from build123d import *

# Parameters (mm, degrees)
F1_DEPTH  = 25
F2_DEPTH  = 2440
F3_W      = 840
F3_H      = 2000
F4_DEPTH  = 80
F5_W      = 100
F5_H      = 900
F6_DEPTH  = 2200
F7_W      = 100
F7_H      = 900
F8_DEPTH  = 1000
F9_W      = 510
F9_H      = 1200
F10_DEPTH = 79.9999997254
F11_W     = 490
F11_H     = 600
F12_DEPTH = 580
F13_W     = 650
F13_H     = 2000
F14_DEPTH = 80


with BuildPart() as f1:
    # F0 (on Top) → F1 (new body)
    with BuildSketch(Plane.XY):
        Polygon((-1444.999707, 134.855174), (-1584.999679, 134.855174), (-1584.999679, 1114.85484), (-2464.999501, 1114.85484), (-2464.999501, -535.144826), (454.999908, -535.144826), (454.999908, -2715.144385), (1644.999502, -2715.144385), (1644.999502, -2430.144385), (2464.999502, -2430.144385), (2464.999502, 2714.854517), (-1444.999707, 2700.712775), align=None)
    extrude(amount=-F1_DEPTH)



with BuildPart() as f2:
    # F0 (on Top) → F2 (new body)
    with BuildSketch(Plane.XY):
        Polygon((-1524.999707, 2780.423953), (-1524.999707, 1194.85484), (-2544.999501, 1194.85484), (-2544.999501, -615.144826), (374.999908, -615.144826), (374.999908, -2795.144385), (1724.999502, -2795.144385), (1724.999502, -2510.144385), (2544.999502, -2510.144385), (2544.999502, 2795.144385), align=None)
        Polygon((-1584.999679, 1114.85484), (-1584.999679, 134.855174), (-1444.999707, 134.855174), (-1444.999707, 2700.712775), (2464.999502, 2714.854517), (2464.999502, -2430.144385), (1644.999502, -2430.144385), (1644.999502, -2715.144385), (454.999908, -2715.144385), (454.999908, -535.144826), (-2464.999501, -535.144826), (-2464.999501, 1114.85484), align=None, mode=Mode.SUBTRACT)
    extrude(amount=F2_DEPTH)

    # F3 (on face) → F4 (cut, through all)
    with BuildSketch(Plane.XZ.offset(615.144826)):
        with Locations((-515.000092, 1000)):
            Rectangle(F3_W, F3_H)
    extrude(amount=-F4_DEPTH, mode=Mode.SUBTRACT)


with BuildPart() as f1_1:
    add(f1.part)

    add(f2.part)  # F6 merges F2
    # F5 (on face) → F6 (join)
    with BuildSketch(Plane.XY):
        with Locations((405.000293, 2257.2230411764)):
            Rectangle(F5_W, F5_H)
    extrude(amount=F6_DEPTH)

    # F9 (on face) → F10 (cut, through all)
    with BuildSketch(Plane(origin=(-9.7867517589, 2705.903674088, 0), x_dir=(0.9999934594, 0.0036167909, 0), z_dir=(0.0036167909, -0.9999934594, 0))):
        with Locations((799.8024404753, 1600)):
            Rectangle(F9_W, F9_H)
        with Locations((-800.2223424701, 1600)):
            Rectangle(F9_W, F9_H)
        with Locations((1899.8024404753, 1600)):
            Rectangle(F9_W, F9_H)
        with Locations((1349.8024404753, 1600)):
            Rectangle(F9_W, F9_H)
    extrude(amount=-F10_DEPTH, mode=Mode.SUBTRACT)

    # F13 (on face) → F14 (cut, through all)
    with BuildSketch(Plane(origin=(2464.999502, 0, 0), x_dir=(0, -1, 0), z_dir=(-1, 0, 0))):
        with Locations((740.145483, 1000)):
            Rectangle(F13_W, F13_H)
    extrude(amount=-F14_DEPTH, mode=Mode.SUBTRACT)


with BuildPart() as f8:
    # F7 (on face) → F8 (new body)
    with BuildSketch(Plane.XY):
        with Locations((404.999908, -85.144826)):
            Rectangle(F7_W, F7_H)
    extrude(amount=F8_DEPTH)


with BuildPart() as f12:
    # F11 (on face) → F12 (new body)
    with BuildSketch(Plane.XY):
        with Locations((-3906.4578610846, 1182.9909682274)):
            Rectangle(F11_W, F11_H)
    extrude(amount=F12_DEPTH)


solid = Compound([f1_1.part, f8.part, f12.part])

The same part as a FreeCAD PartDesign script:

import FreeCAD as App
import Part
import Sketcher
from FreeCAD import Vector


def add_polygon(sketch, points):
    """Adds a closed chain of lines whose ends are joined by coincident constraints."""
    first, n = sketch.GeometryCount, len(points)
    for a, b in zip(points, points[1:] + points[:1]):
        sketch.addGeometry(Part.LineSegment(App.Vector(*a, 0), App.Vector(*b, 0)), False)
    for i in range(n):
        sketch.addConstraint(Sketcher.Constraint("Coincident", first + i, 2, first + (i + 1) % n, 1))

doc = App.newDocument("Part")
body = doc.addObject("PartDesign::Body", "Body")

# Sketch on XY plane
sketch1 = body.newObject("Sketcher::SketchObject", "Sketch")
sketch1.AttachmentSupport = (doc.getObject("XY_Plane"), [""])
sketch1.MapMode = "FlatFace"
add_polygon(sketch1, [(-1444.999707, 134.855174), (-1584.999679, 134.855174), (-1584.999679, 1114.85484), (-2464.999501, 1114.85484), (-2464.999501, -535.144826), (454.999908, -535.144826), (454.999908, -2715.144385), (1644.999502, -2715.144385), (1644.999502, -2430.144385), (2464.999502, -2430.144385), (2464.999502, 2714.854517), (-1444.999707, 2700.712775)])  # lines 0-11
sketch1.addConstraint([
    Sketcher.Constraint("Horizontal", 0),
    Sketcher.Constraint("Vertical", 1),
    Sketcher.Constraint("Horizontal", 2),
    Sketcher.Constraint("Vertical", 3),
    Sketcher.Constraint("Horizontal", 4),
    Sketcher.Constraint("Vertical", 5),
    Sketcher.Constraint("Horizontal", 6),
    Sketcher.Constraint("Vertical", 7),
    Sketcher.Constraint("Horizontal", 8),
    Sketcher.Constraint("Vertical", 9),
    Sketcher.Constraint("Vertical", 11),
    Sketcher.Constraint("DistanceX", 8, 1, 8, 2, 820.0),
    Sketcher.Constraint("DistanceY", 7, 1, 7, 2, 285.0),
    Sketcher.Constraint("DistanceY", 3, 2, 0, 2, 670.0),
    Sketcher.Constraint("DistanceY", 11, 2, 11, 1, 2565.857601),
    Sketcher.Constraint("DistanceX", 2, 2, 2, 1, 879.999822),
    Sketcher.Constraint("DistanceX", 4, 1, 4, 2, 2919.999409),
    Sketcher.Constraint("DistanceY", 5, 2, 5, 1, 2179.999559),
    Sketcher.Constraint("DistanceX", 2, 2, -1, 1, 2464.999501),
    Sketcher.Constraint("DistanceX", -1, 1, 6, 2, 1644.999502),
    Sketcher.Constraint("DistanceX", 0, 2, 0, 1, 139.999972),
    Sketcher.Constraint("DistanceY", 1, 1, 1, 2, 979.999666),
    Sketcher.Constraint("DistanceY", 9, 1, 9, 2, 5144.998902),
    Sketcher.Constraint("DistanceY", -1, 1, 1, 2, 1114.85484),
])
pad1 = body.newObject("PartDesign::Pad", "Pad")
pad1.Profile = sketch1
pad1.Length = 25
pad1.Reversed = True
body2 = doc.addObject("PartDesign::Body", "Body001")

# Sketch on XY plane
sketch2 = body2.newObject("Sketcher::SketchObject", "Sketch001")
sketch2.AttachmentSupport = (doc.getObject("XY_Plane001"), [""])
sketch2.MapMode = "FlatFace"
add_polygon(sketch2, [(-1524.999707, 2780.423953), (-1524.999707, 1194.85484), (-2544.999501, 1194.85484), (-2544.999501, -615.144826), (374.999908, -615.144826), (374.999908, -2795.144385), (1724.999502, -2795.144385), (1724.999502, -2510.144385), (2544.999502, -2510.144385), (2544.999502, 2795.144385)])  # lines 0-9
add_polygon(sketch2, [(-2464.999501, 1114.85484), (-1584.999679, 1114.85484), (-1584.999679, 134.855174), (-1444.999707, 134.855174), (-1444.999707, 2700.712775), (2464.999502, 2714.854517), (2464.999502, -2430.144385), (1644.999502, -2430.144385), (1644.999502, -2715.144385), (454.999908, -2715.144385), (454.999908, -535.144826), (-2464.999501, -535.144826)])  # lines 10-21
sketch2.addConstraint([
    Sketcher.Constraint("Vertical", 0),
    Sketcher.Constraint("Horizontal", 1),
    Sketcher.Constraint("Vertical", 2),
    Sketcher.Constraint("Horizontal", 3),
    Sketcher.Constraint("Vertical", 4),
    Sketcher.Constraint("Horizontal", 5),
    Sketcher.Constraint("Vertical", 6),
    Sketcher.Constraint("Horizontal", 7),
    Sketcher.Constraint("Vertical", 8),
    Sketcher.Constraint("Horizontal", 10),
    Sketcher.Constraint("Vertical", 11),
    Sketcher.Constraint("Horizontal", 12),
    Sketcher.Constraint("Vertical", 13),
    Sketcher.Constraint("Vertical", 15),
    Sketcher.Constraint("Horizontal", 16),
    Sketcher.Constraint("Vertical", 17),
    Sketcher.Constraint("Horizontal", 18),
    Sketcher.Constraint("Vertical", 19),
    Sketcher.Constraint("Horizontal", 20),
    Sketcher.Constraint("Vertical", 21),
    Sketcher.Constraint("Parallel", 9, 14),
    Sketcher.Constraint("Equal", 7, 16),
    Sketcher.Constraint("Equal", 3, 20),
    Sketcher.Constraint("Equal", 6, 17),
    Sketcher.Constraint("Equal", 4, 19),
    Sketcher.Constraint("DistanceX", 7, 1, 7, 2, 820.0),
    Sketcher.Constraint("DistanceY", 6, 1, 6, 2, 285.0),
    Sketcher.Constraint("DistanceY", 10, 2, 0, 2, 80.0),
    Sketcher.Constraint("DistanceY", 2, 2, 11, 2, 750.0),
    Sketcher.Constraint("DistanceX", 0, 2, 12, 2, 80.0),
    Sketcher.Constraint("DistanceX", 14, 2, 8, 2, 80.0),
    Sketcher.Constraint("DistanceY", 7, 2, 15, 2, 80.0),
    Sketcher.Constraint("DistanceX", 4, 2, 18, 2, 80.0),
    Sketcher.Constraint("DistanceY", 13, 1, 13, 2, 2565.857601),
    Sketcher.Constraint("DistanceX", 3, 1, 3, 2, 2919.999409),
    Sketcher.Constraint("DistanceX", 10, 1, 10, 2, 879.999822),
    Sketcher.Constraint("DistanceY", 4, 2, 4, 1, 2179.999559),
    Sketcher.Constraint("DistanceY", 8, 1, 8, 2, 5305.28877),
    Sketcher.Constraint("DistanceX", 1, 2, -1, 1, 2544.999501),
    Sketcher.Constraint("DistanceX", -1, 1, 5, 2, 1724.999502),
    Sketcher.Constraint("Distance", 9, 4070.025829),
    Sketcher.Constraint("DistanceY", 0, 2, 0, 1, 1585.569113),
    Sketcher.Constraint("DistanceY", 2, 2, 2, 1, 1809.999666),
    Sketcher.Constraint("DistanceY", -1, 1, 0, 2, 1194.85484),
])
pad2 = body2.newObject("PartDesign::Pad", "Pad001")
pad2.Profile = sketch2
pad2.Length = 2440

# Sketch on XZ plane
sketch3 = body2.newObject("Sketcher::SketchObject", "Sketch002")
sketch3.AttachmentSupport = (doc.getObject("XZ_Plane001"), [""])
sketch3.MapMode = "FlatFace"
sketch3.AttachmentOffset = App.Placement(Vector(0, 0, 615.144826), App.Rotation())
add_polygon(sketch3, [(-935.000092, 2000), (-935.000092, 0), (-95.000092, 0), (-95.000092, 2000)])  # lines 0-3
sketch3.addConstraint([
    Sketcher.Constraint("Vertical", 0),
    Sketcher.Constraint("Horizontal", 1),
    Sketcher.Constraint("Vertical", 2),
    Sketcher.Constraint("Horizontal", 3),
    Sketcher.Constraint("PointOnObject", 0, 2, -1),
    Sketcher.Constraint("DistanceX", 1, 1, 1, 2, 840.0),
    Sketcher.Constraint("DistanceY", 0, 2, 0, 1, 2000.0),
    Sketcher.Constraint("DistanceX", 0, 2, -1, 1, 935.000092),
])
pocket1 = body2.newObject("PartDesign::Pocket", "Pocket")
pocket1.Profile = sketch3
pocket1.Length = 80
body.AllowCompound = True
doc.recompute()

boolean = body.newObject("PartDesign::Boolean", "Boolean")
boolean.Type = "Fuse"
boolean.addObjects([body2])

# Sketch on XY plane
sketch4 = body.newObject("Sketcher::SketchObject", "Sketch003")
sketch4.AttachmentSupport = (doc.getObject("XY_Plane"), [""])
sketch4.MapMode = "FlatFace"
add_polygon(sketch4, [(355.000293, 2707.223041), (355.000293, 1807.223041), (455.000293, 1807.223041), (455.000293, 2707.223041)])  # lines 0-3
sketch4.addConstraint([
    Sketcher.Constraint("Vertical", 0),
    Sketcher.Constraint("Horizontal", 1),
    Sketcher.Constraint("Vertical", 2),
    Sketcher.Constraint("Horizontal", 3),
    Sketcher.Constraint("DistanceX", 1, 1, 1, 2, 100.0),
    Sketcher.Constraint("DistanceY", 0, 2, 0, 1, 900.0),
    Sketcher.Constraint("DistanceY", -1, 1, 0, 2, 1807.223041),
    Sketcher.Constraint("DistanceX", -1, 1, 0, 2, 355.000293),
])
pad3 = body.newObject("PartDesign::Pad", "Pad002")
pad3.Profile = sketch4
pad3.Length = 2200

# Sketch on an angled plane
sketch5 = body.newObject("Sketcher::SketchObject", "Sketch004")
sketch5.Placement = App.Placement(Vector(-9.786752, 2705.903674, 0), App.Rotation(Vector(0.999993459, 0.003616791, 0), Vector(0, 0, 0.999999999), Vector(0.003616791, -0.999993459, 0), "ZXY"))
add_polygon(sketch5, [(544.80244, 2199.999997), (544.80244, 999.999998), (1054.80244, 999.999998), (1054.80244, 2199.999997)])  # lines 0-3
add_polygon(sketch5, [(-1055.222342, 2199.999997), (-1055.222342, 999.999998), (-545.222342, 999.999998), (-545.222342, 2199.999997)])  # lines 4-7
add_polygon(sketch5, [(1644.802439, 2199.999997), (1644.802439, 999.999998), (2154.802439, 999.999998), (2154.802439, 2199.999997)])  # lines 8-11
add_polygon(sketch5, [(1094.80244, 2199.999997), (1094.80244, 999.999998), (1604.802439, 999.999998), (1604.802439, 2199.999997)])  # lines 12-15
sketch5.addConstraint([
    Sketcher.Constraint("Vertical", 0),
    Sketcher.Constraint("Horizontal", 1),
    Sketcher.Constraint("Vertical", 2),
    Sketcher.Constraint("Horizontal", 3),
    Sketcher.Constraint("Vertical", 4),
    Sketcher.Constraint("Horizontal", 5),
    Sketcher.Constraint("Vertical", 6),
    Sketcher.Constraint("Horizontal", 7),
    Sketcher.Constraint("Vertical", 8),
    Sketcher.Constraint("Horizontal", 9),
    Sketcher.Constraint("Vertical", 10),
    Sketcher.Constraint("Horizontal", 11),
    Sketcher.Constraint("Vertical", 12),
    Sketcher.Constraint("Horizontal", 13),
    Sketcher.Constraint("Vertical", 14),
    Sketcher.Constraint("Horizontal", 15),
    Sketcher.Constraint("Horizontal", 1, 2, 4, 2),
    Sketcher.Constraint("Horizontal", 3, 2, 6, 2),
    Sketcher.Constraint("Horizontal", 5, 2, 8, 2),
    Sketcher.Constraint("Horizontal", 7, 2, 10, 2),
    Sketcher.Constraint("Horizontal", 9, 2, 12, 2),
    Sketcher.Constraint("Horizontal", 11, 2, 14, 2),
    Sketcher.Constraint("Equal", 3, 5),
    Sketcher.Constraint("Equal", 7, 9),
    Sketcher.Constraint("Equal", 11, 13),
    Sketcher.Constraint("DistanceX", 1, 1, 1, 2, 510.0),
    Sketcher.Constraint("DistanceY", 0, 2, 0, 1, 1199.999998),
    Sketcher.Constraint("DistanceY", -1, 1, 0, 2, 999.999998),
    Sketcher.Constraint("DistanceX", 1, 2, 8, 2, 590.0),
    Sketcher.Constraint("DistanceX", 1, 2, 12, 2, 40.0),
    Sketcher.Constraint("DistanceX", -1, 1, 0, 2, 544.80244),
    Sketcher.Constraint("DistanceX", 4, 2, -1, 1, 1055.222342),
])
pocket2 = body.newObject("PartDesign::Pocket", "Pocket001")
pocket2.Profile = sketch5
pocket2.Type = "ThroughAll"

# Sketch on YZ plane
sketch6 = body.newObject("Sketcher::SketchObject", "Sketch005")
sketch6.AttachmentSupport = (doc.getObject("YZ_Plane"), [""])
sketch6.MapMode = "FlatFace"
sketch6.AttachmentOffset = App.Placement(Vector(0, 0, 2464.999502), App.Rotation())
add_polygon(sketch6, [(-415.145483, 2000), (-415.145483, 0), (-1065.145483, 0), (-1065.145483, 2000)])  # lines 0-3
sketch6.addConstraint([
    Sketcher.Constraint("Vertical", 0),
    Sketcher.Constraint("Horizontal", 1),
    Sketcher.Constraint("Vertical", 2),
    Sketcher.Constraint("Horizontal", 3),
    Sketcher.Constraint("PointOnObject", 0, 2, -1),
    Sketcher.Constraint("DistanceX", 1, 2, 1, 1, 650.0),
    Sketcher.Constraint("DistanceY", 0, 2, 0, 1, 2000.0),
    Sketcher.Constraint("DistanceX", 0, 2, -1, 1, 415.145483),
])
pocket3 = body.newObject("PartDesign::Pocket", "Pocket002")
pocket3.Profile = sketch6
pocket3.Type = "ThroughAll"
pocket3.Reversed = True
body3 = doc.addObject("PartDesign::Body", "Body002")

# Sketch on XY plane
sketch7 = body3.newObject("Sketcher::SketchObject", "Sketch006")
sketch7.AttachmentSupport = (doc.getObject("XY_Plane002"), [""])
sketch7.MapMode = "FlatFace"
add_polygon(sketch7, [(354.999908, 364.855174), (354.999908, -535.144826), (454.999908, -535.144826), (454.999908, 364.855174)])  # lines 0-3
sketch7.addConstraint([
    Sketcher.Constraint("Vertical", 0),
    Sketcher.Constraint("Horizontal", 1),
    Sketcher.Constraint("Vertical", 2),
    Sketcher.Constraint("Horizontal", 3),
    Sketcher.Constraint("DistanceX", 1, 1, 1, 2, 100.0),
    Sketcher.Constraint("DistanceY", 0, 2, 0, 1, 900.0),
    Sketcher.Constraint("DistanceX", -1, 1, 0, 2, 354.999908),
    Sketcher.Constraint("DistanceY", 0, 2, -1, 1, 535.144826),
])
pad4 = body3.newObject("PartDesign::Pad", "Pad003")
pad4.Profile = sketch7
pad4.Length = 1000
body4 = doc.addObject("PartDesign::Body", "Body003")

# Sketch on XY plane
sketch8 = body4.newObject("Sketcher::SketchObject", "Sketch007")
sketch8.AttachmentSupport = (doc.getObject("XY_Plane003"), [""])
sketch8.MapMode = "FlatFace"
add_polygon(sketch8, [(-4151.457861, 1482.990968), (-4151.457861, 882.990968), (-3661.457861, 882.990968), (-3661.457861, 1482.990968)])  # lines 0-3
sketch8.addConstraint([
    Sketcher.Constraint("Vertical", 0),
    Sketcher.Constraint("Horizontal", 1),
    Sketcher.Constraint("Vertical", 2),
    Sketcher.Constraint("Horizontal", 3),
    Sketcher.Constraint("DistanceX", 1, 1, 1, 2, 490.0),
    Sketcher.Constraint("DistanceY", 0, 2, 0, 1, 600.0),
    Sketcher.Constraint("DistanceX", 0, 2, -1, 1, 4151.457861),
    Sketcher.Constraint("DistanceY", -1, 1, 0, 2, 882.990968),
])
pad5 = body4.newObject("PartDesign::Pad", "Pad004")
pad5.Profile = sketch8
pad5.Length = 580

doc.recompute()
